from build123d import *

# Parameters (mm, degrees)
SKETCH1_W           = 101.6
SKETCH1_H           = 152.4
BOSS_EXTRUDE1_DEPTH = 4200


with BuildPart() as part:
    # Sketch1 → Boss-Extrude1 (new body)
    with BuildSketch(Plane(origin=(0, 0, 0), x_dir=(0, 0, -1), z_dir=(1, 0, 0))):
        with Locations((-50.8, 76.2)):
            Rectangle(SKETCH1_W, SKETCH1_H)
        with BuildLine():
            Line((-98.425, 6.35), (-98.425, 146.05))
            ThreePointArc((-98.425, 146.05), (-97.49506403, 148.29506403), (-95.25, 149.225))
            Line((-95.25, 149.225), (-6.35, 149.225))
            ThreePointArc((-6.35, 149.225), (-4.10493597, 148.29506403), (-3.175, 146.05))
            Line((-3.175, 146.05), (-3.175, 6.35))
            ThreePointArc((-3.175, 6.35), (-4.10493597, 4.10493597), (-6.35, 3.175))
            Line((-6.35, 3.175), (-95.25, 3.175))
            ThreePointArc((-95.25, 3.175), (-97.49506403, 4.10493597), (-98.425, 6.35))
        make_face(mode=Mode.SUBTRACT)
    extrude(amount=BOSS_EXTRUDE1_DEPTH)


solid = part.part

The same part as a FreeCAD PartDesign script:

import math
import FreeCAD as App
import Part
import Sketcher

V = App.Vector
Q = App.Units.Quantity


def add_polygon(sketch, points):
    """Adds a closed chain of lines whose ends are joined by coincident constraints."""
    first, n = sketch.GeometryCount, len(points)
    for a, b in zip(points, points[1:] + points[:1]):
        sketch.addGeometry(Part.LineSegment(App.Vector(*a, 0), App.Vector(*b, 0)), False)
    for i in range(n):
        sketch.addConstraint(Sketcher.Constraint("Coincident", first + i, 2, first + (i + 1) % n, 1))

doc = App.newDocument("Part")
body = doc.addObject("PartDesign::Body", "Body")

# Sketch on YZ plane
sketch1 = body.newObject("Sketcher::SketchObject", "Sketch")
sketch1.AttachmentSupport = (doc.getObject("YZ_Plane"), [""])
sketch1.MapMode = "FlatFace"
add_polygon(sketch1, [(152.4, 101.6), (0, 101.6), (0, 0), (152.4, 0)])  # lines 0-3
sketch1.addGeometry(Part.ArcOfCircle(Part.Circle(V(6.35, 95.25, 0), V(0, 0, 1), 3.175), math.radians(90), math.radians(180)), False)  # 4
sketch1.addGeometry(Part.LineSegment(V(6.35, 98.425, 0), V(146.05, 98.425, 0)), False)  # 5
sketch1.addGeometry(Part.ArcOfCircle(Part.Circle(V(146.05, 95.25, 0), V(0, 0, 1), 3.175), math.radians(0), math.radians(90)), False)  # 6
sketch1.addGeometry(Part.LineSegment(V(149.225, 95.25, 0), V(149.225, 6.35, 0)), False)  # 7
sketch1.addGeometry(Part.ArcOfCircle(Part.Circle(V(146.05, 6.35, 0), V(0, 0, 1), 3.175), math.radians(-90), math.radians(0)), False)  # 8
sketch1.addGeometry(Part.LineSegment(V(146.05, 3.175, 0), V(6.35, 3.175, 0)), False)  # 9
sketch1.addGeometry(Part.ArcOfCircle(Part.Circle(V(6.35, 6.35, 0), V(0, 0, 1), 3.175), math.radians(-180), math.radians(-90)), False)  # 10
sketch1.addGeometry(Part.LineSegment(V(3.175, 6.35, 0), V(3.175, 95.25, 0)), False)  # 11
sketch1.addConstraint(Sketcher.Constraint("Tangent", 4, 1, 5, 1))
sketch1.addConstraint(Sketcher.Constraint("Tangent", 5, 2, 6, 2))
sketch1.addConstraint(Sketcher.Constraint("Tangent", 6, 1, 7, 1))
sketch1.addConstraint(Sketcher.Constraint("Tangent", 7, 2, 8, 2))
sketch1.addConstraint(Sketcher.Constraint("Tangent", 8, 1, 9, 1))
sketch1.addConstraint(Sketcher.Constraint("Tangent", 9, 2, 10, 2))
sketch1.addConstraint(Sketcher.Constraint("Tangent", 10, 1, 11, 1))
sketch1.addConstraint(Sketcher.Constraint("Tangent", 11, 2, 4, 2))
sketch1.addConstraint(Sketcher.Constraint("Horizontal", 0))
sketch1.addConstraint(Sketcher.Constraint("Vertical", 1))
sketch1.addConstraint(Sketcher.Constraint("Horizontal", 2))
sketch1.addConstraint(Sketcher.Constraint("Vertical", 3))
sketch1.addConstraint(Sketcher.Constraint("Horizontal", 5))
sketch1.addConstraint(Sketcher.Constraint("Vertical", 7))
sketch1.addConstraint(Sketcher.Constraint("Horizontal", 9))
sketch1.addConstraint(Sketcher.Constraint("Vertical", 11))
sketch1.addConstraint(Sketcher.Constraint("Coincident", 1, 2, -1, 1))
sketch1.addConstraint(Sketcher.Constraint("Equal", 4, 6))
sketch1.addConstraint(Sketcher.Constraint("Equal", 6, 8))
sketch1.addConstraint(Sketcher.Constraint("Equal", 8, 10))
sketch1.addConstraint(Sketcher.Constraint("DistanceX", 0, 2, 0, 1, Q("6 in")))
sketch1.addConstraint(Sketcher.Constraint("DistanceY", 1, 2, 1, 1, Q("4 in")))
sketch1.addConstraint(Sketcher.Constraint("DistanceX", 5, 1, 5, 2, Q("5.5 in")))
sketch1.addConstraint(Sketcher.Constraint("DistanceY", 7, 2, 7, 1, Q("3.5 in")))
sketch1.addConstraint(Sketcher.Constraint("Radius", 4, Q("0.125 in")))
sketch1.addConstraint(Sketcher.Constraint("DistanceX", -1, 1, 4, 3, Q("0.25 in")))
sketch1.addConstraint(Sketcher.Constraint("DistanceY", -1, 1, 4, 3, Q("3.75 in")))
pad1 = body.newObject("PartDesign::Pad", "Pad")
pad1.Profile = sketch1
pad1.Length = 4200

doc.recompute()
